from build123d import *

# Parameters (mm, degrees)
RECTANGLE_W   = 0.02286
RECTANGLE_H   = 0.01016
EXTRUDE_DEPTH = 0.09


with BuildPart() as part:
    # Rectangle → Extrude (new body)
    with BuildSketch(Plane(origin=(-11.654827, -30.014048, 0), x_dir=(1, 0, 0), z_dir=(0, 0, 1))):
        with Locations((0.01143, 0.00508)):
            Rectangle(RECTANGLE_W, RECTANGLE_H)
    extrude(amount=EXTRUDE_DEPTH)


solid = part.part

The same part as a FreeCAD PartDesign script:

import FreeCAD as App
import Part
import Sketcher
Q = App.Units.Quantity


def add_polygon(sketch, points):
    """Adds a closed chain of lines whose ends are joined by coincident constraints."""
    first, n = sketch.GeometryCount, len(points)
    for a, b in zip(points, points[1:] + points[:1]):
        sketch.addGeometry(Part.LineSegment(App.Vector(*a, 0), App.Vector(*b, 0)), False)
    for i in range(n):
        sketch.addConstraint(Sketcher.Constraint("Coincident", first + i, 2, first + (i + 1) % n, 1))

doc = App.newDocument("Part")
body = doc.addObject("PartDesign::Body", "Body")

# Sketch on XY plane
sketch1 = doc.addObject("Sketcher::SketchObject", "Sketch")
body.addObject(sketch1)
sketch1.AttachmentSupport = (doc.XY_Plane, [""])
sketch1.MapMode = "FlatFace"
add_polygon(sketch1, [(-11.655, -30.004), (-11.655, -30.014), (-11.632, -30.014), (-11.632, -30.004)])  # lines 0-3
sketch1.addConstraint(Sketcher.Constraint("Vertical", 0))
sketch1.addConstraint(Sketcher.Constraint("Horizontal", 1))
sketch1.addConstraint(Sketcher.Constraint("Vertical", 2))
sketch1.addConstraint(Sketcher.Constraint("Horizontal", 3))
sketch1.addConstraint(Sketcher.Constraint("DistanceX", 1, 1, 1, 2, Q("0.02286 mm")))
sketch1.addConstraint(Sketcher.Constraint("DistanceY", 0, 2, 0, 1, Q("0.01016 mm")))
sketch1.addConstraint(Sketcher.Constraint("DistanceY", 2, 2, -1, 1, Q("30.003888 mm")))
sketch1.addConstraint(Sketcher.Constraint("DistanceX", 0, 2, -1, 1, Q("11.654827 mm")))
pad1 = doc.addObject("PartDesign::Pad", "Pad")
body.addObject(pad1)
pad1.Profile = sketch1
pad1.Length = 0.09

doc.recompute()
